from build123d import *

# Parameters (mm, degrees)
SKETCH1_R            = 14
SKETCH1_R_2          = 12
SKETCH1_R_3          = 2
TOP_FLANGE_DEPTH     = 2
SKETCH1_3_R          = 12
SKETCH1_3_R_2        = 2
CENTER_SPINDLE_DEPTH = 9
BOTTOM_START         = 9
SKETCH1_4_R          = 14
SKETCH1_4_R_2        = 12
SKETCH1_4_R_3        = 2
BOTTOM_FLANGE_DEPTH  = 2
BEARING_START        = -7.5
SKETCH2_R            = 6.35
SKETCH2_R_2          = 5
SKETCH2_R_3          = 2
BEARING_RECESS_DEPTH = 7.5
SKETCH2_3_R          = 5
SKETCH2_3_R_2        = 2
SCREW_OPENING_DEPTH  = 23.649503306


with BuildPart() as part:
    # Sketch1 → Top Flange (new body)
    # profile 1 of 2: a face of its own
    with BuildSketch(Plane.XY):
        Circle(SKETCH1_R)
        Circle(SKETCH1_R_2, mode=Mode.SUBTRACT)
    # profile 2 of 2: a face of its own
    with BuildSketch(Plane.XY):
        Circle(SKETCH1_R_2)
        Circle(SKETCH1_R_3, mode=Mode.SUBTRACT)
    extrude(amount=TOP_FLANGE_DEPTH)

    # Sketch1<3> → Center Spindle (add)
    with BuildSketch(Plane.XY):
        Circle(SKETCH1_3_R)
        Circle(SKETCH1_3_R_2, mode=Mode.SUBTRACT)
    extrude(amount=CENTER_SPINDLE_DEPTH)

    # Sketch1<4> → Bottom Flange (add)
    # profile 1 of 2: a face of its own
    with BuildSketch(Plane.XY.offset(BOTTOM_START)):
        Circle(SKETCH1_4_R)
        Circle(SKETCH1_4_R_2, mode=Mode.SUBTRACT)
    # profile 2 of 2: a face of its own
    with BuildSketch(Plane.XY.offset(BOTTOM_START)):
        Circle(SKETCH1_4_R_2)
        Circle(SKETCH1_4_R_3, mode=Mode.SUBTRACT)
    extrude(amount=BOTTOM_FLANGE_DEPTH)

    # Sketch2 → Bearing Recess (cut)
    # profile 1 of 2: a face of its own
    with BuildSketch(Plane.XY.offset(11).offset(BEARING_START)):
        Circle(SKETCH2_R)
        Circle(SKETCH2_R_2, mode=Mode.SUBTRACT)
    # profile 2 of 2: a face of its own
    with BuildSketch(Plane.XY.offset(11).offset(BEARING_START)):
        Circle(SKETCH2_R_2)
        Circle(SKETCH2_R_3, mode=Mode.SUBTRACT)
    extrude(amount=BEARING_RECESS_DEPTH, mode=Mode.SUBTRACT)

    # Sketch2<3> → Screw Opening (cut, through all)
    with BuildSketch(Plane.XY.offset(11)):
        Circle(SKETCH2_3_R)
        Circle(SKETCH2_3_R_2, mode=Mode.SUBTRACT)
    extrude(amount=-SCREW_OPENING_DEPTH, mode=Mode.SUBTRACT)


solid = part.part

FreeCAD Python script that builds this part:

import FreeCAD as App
import Part
import Sketcher

doc = App.newDocument("Part")
body = doc.addObject("PartDesign::Body", "Body")

sketch1 = body.newObject("Sketcher::SketchObject", "Sketch")
sketch1.AttachmentSupport = (doc.getObject("XY_Plane"), [""])
sketch1.MapMode = "FlatFace"
sketch1.addGeometry([
    Part.Circle(App.Vector(0, 0, 0), App.Vector(0, 0, 1), 14),
    Part.Circle(App.Vector(0, 0, 0), App.Vector(0, 0, 1), 2),
], False)
sketch1.addConstraint([
    Sketcher.Constraint("Coincident", 0, 3, -1, 1),
    Sketcher.Constraint("Coincident", 1, 3, -1, 1),
    Sketcher.Constraint("Diameter", 0, 28.0),
    Sketcher.Constraint("Diameter", 1, 4.0),
])
pad1 = body.newObject("PartDesign::Pad", "Pad")
pad1.Profile = sketch1
pad1.Length = 2

sketch2 = body.newObject("Sketcher::SketchObject", "Sketch001")
sketch2.AttachmentSupport = (doc.getObject("XY_Plane"), [""])
sketch2.MapMode = "FlatFace"
sketch2.addGeometry([
    Part.Circle(App.Vector(0, 0, 0), App.Vector(0, 0, 1), 12),
    Part.Circle(App.Vector(0, 0, 0), App.Vector(0, 0, 1), 2),
], False)
sketch2.addConstraint([
    Sketcher.Constraint("Coincident", 0, 3, -1, 1),
    Sketcher.Constraint("Coincident", 1, 3, -1, 1),
    Sketcher.Constraint("Diameter", 0, 24.0),
    Sketcher.Constraint("Diameter", 1, 4.0),
])
pad2 = body.newObject("PartDesign::Pad", "Pad001")
pad2.Profile = sketch2
pad2.Length = 9

sketch3 = body.newObject("Sketcher::SketchObject", "Sketch002")
sketch3.AttachmentSupport = (doc.getObject("XY_Plane"), [""])
sketch3.MapMode = "FlatFace"
sketch3.AttachmentOffset = App.Placement(App.Vector(0, 0, 9), App.Rotation())
sketch3.addGeometry([
    Part.Circle(App.Vector(0, 0, 0), App.Vector(0, 0, 1), 14),
    Part.Circle(App.Vector(0, 0, 0), App.Vector(0, 0, 1), 2),
], False)
sketch3.addConstraint([
    Sketcher.Constraint("Coincident", 0, 3, -1, 1),
    Sketcher.Constraint("Coincident", 1, 3, -1, 1),
    Sketcher.Constraint("Diameter", 0, 28.0),
    Sketcher.Constraint("Diameter", 1, 4.0),
])
pad3 = body.newObject("PartDesign::Pad", "Pad002")
pad3.Profile = sketch3
pad3.Length = 2

sketch4 = body.newObject("Sketcher::SketchObject", "Sketch003")
sketch4.AttachmentSupport = (doc.getObject("XY_Plane"), [""])
sketch4.MapMode = "FlatFace"
sketch4.AttachmentOffset = App.Placement(App.Vector(0, 0, 3.5), App.Rotation())
sketch4.addGeometry([
    Part.Circle(App.Vector(0, 0, 0), App.Vector(0, 0, 1), 6.3),
    Part.Circle(App.Vector(0, 0, 0), App.Vector(0, 0, 1), 2),
], False)
sketch4.addConstraint([
    Sketcher.Constraint("Coincident", 0, 3, -1, 1),
    Sketcher.Constraint("Coincident", 1, 3, -1, 1),
    Sketcher.Constraint("Diameter", 1, 4.0),
    Sketcher.Constraint("Diameter", 0, 12.7),
])
pocket1 = body.newObject("PartDesign::Pocket", "Pocket")
pocket1.Profile = sketch4
pocket1.Length = 7.5
pocket1.Reversed = True

sketch5 = body.newObject("Sketcher::SketchObject", "Sketch004")
sketch5.AttachmentSupport = (doc.getObject("XY_Plane"), [""])
sketch5.MapMode = "FlatFace"
sketch5.AttachmentOffset = App.Placement(App.Vector(0, 0, 11), App.Rotation())
sketch5.addGeometry([
    Part.Circle(App.Vector(0, 0, 0), App.Vector(0, 0, 1), 5),
    Part.Circle(App.Vector(0, 0, 0), App.Vector(0, 0, 1), 2),
], False)
sketch5.addConstraint([
    Sketcher.Constraint("Coincident", 0, 3, -1, 1),
    Sketcher.Constraint("Coincident", 1, 3, -1, 1),
    Sketcher.Constraint("Diameter", 0, 10.0),
    Sketcher.Constraint("Diameter", 1, 4.0),
])
pocket2 = body.newObject("PartDesign::Pocket", "Pocket001")
pocket2.Profile = sketch5
pocket2.Type = "ThroughAll"

doc.recompute()
